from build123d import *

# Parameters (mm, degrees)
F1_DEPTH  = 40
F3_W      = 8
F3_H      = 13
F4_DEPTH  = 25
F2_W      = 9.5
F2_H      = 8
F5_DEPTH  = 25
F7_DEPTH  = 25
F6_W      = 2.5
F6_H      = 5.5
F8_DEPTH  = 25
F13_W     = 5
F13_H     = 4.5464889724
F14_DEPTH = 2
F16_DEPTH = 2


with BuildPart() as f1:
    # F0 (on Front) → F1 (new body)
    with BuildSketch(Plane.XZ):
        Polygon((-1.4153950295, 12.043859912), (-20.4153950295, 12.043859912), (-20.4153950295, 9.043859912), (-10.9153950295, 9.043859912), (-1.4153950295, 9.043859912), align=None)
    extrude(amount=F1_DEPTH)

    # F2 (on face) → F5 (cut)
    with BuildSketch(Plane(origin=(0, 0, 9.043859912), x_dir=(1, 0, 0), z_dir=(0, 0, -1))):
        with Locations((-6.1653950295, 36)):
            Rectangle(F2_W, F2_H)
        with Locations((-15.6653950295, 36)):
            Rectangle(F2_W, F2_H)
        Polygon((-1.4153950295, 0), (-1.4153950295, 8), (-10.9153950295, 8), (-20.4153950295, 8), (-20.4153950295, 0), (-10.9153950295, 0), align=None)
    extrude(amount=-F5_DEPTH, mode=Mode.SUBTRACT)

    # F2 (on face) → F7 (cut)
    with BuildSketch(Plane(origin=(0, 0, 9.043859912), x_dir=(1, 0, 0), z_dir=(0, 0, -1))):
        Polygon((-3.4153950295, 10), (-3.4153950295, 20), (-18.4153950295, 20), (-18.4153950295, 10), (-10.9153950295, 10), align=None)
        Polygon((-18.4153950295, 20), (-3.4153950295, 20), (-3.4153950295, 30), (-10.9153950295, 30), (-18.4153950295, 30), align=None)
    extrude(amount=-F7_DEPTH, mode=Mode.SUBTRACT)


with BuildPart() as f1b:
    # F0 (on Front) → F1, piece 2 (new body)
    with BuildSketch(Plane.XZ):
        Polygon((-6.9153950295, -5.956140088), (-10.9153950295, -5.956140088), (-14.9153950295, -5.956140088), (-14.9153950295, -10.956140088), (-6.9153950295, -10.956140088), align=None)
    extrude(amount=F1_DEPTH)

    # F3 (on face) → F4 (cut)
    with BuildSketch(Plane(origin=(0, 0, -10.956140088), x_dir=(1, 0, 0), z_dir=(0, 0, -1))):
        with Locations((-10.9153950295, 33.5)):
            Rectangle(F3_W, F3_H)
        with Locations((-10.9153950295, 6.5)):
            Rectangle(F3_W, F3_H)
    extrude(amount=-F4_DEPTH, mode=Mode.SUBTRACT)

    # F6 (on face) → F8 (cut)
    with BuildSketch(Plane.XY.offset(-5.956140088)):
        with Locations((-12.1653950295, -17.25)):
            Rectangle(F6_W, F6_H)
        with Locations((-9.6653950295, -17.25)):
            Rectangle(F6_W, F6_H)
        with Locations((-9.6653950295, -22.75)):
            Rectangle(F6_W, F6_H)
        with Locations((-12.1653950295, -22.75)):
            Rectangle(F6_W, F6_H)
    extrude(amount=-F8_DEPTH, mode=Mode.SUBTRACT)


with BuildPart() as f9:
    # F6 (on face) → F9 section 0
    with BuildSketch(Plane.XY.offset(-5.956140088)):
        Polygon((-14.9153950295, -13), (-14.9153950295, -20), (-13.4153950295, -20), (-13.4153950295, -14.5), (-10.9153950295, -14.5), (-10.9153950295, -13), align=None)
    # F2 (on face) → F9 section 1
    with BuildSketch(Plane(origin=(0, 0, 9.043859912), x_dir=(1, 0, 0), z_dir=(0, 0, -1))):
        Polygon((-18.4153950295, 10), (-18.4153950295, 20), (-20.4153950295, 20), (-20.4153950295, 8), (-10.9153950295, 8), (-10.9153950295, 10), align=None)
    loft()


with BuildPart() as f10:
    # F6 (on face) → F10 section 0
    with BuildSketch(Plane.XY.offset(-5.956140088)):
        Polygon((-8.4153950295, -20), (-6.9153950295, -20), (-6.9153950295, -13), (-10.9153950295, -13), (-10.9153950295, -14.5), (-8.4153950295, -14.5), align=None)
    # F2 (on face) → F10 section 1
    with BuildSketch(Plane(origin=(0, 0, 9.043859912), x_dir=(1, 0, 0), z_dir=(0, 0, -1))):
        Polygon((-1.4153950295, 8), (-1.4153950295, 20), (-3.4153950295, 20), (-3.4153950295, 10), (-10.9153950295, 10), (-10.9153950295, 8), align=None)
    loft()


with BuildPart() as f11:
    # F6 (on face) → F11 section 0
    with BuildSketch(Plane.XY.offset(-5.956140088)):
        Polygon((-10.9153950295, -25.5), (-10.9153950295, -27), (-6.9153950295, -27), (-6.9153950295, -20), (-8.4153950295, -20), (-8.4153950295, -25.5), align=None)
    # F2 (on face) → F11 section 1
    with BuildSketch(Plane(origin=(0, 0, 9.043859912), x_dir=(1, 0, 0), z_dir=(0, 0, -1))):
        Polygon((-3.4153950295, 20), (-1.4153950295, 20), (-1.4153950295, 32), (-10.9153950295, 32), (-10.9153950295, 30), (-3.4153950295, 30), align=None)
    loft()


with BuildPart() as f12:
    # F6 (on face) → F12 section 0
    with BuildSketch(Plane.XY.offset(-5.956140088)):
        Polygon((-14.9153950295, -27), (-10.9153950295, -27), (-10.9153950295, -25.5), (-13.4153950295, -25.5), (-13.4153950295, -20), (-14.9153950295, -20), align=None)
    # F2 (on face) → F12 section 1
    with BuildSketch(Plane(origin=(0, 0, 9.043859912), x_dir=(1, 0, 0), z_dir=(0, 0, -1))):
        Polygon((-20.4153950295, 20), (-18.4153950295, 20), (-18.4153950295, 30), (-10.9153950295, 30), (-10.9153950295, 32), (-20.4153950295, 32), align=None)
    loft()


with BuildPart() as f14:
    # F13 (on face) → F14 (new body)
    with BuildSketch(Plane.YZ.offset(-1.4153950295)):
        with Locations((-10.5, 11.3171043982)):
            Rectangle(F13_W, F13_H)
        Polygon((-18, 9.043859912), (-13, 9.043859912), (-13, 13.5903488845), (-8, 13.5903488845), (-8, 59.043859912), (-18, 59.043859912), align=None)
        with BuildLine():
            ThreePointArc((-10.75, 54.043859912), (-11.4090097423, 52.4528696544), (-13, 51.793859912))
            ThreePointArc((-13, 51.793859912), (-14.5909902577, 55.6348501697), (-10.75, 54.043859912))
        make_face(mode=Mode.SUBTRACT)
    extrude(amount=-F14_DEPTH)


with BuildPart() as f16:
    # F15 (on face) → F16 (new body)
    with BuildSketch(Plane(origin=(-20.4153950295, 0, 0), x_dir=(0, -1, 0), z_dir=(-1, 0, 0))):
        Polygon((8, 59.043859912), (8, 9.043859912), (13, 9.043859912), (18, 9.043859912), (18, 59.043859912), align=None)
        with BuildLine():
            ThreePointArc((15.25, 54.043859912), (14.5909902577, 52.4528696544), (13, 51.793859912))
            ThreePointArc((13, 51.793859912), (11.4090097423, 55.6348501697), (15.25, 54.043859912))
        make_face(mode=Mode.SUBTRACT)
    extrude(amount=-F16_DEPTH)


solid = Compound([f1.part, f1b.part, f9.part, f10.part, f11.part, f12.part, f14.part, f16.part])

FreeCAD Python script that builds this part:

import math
import FreeCAD as App
import Part
import Sketcher
from FreeCAD import Vector


def add_polygon(sketch, points):
    """Adds a closed chain of lines whose ends are joined by coincident constraints."""
    first, n = sketch.GeometryCount, len(points)
    for a, b in zip(points, points[1:] + points[:1]):
        sketch.addGeometry(Part.LineSegment(App.Vector(*a, 0), App.Vector(*b, 0)), False)
    for i in range(n):
        sketch.addConstraint(Sketcher.Constraint("Coincident", first + i, 2, first + (i + 1) % n, 1))

doc = App.newDocument("Part")
body = doc.addObject("PartDesign::Body", "Body")

sketch1 = body.newObject("Sketcher::SketchObject", "Sketch")
sketch1.AttachmentSupport = (doc.getObject("XZ_Plane"), [""])
sketch1.MapMode = "FlatFace"
add_polygon(sketch1, [(-1.4, 12), (-20.4, 12), (-20.4, 9), (-1.4, 9)])
sketch1.addConstraint([
    Sketcher.Constraint("Horizontal", 0),
    Sketcher.Constraint("Vertical", 1),
    Sketcher.Constraint("Horizontal", 2),
    Sketcher.Constraint("Vertical", 3),
    Sketcher.Constraint("DistanceX", 0, 2, 0, 1, 19.0),
    Sketcher.Constraint("DistanceY", 1, 2, 1, 1, 3.0),
    Sketcher.Constraint("DistanceY", -1, 1, 0, 2, 12.04386),
    Sketcher.Constraint("DistanceX", 0, 2, -1, 1, 20.415395),
])
pad1 = body.newObject("PartDesign::Pad", "Pad")
pad1.Profile = sketch1
pad1.Length = 40

sketch2 = body.newObject("Sketcher::SketchObject", "Sketch001")
sketch2.AttachmentSupport = (doc.getObject("XY_Plane"), [""])
sketch2.MapMode = "FlatFace"
sketch2.AttachmentOffset = App.Placement(Vector(0, 0, 9.04386), App.Rotation())
add_polygon(sketch2, [(-1, -32), (-1, -40), (-20, -40), (-20, -32)])
add_polygon(sketch2, [(-1, 0), (-1, -8), (-20, -8), (-20, 0)])
sketch2.addConstraint([
    Sketcher.Constraint("Vertical", 0),
    Sketcher.Constraint("Horizontal", 1),
    Sketcher.Constraint("Vertical", 2),
    Sketcher.Constraint("Horizontal", 3),
    Sketcher.Constraint("Vertical", 4),
    Sketcher.Constraint("Horizontal", 5),
    Sketcher.Constraint("Vertical", 6),
    Sketcher.Constraint("Horizontal", 7),
    Sketcher.Constraint("PointOnObject", 6, 2, -1),
    Sketcher.Constraint("Vertical", 3, 2, 4, 2),
    Sketcher.Constraint("Vertical", 2, 2, 5, 2),
    Sketcher.Constraint("Equal", 2, 4),
    Sketcher.Constraint("DistanceX", 1, 2, 1, 1, 19.0),
    Sketcher.Constraint("DistanceY", 0, 2, 0, 1, 8.0),
    Sketcher.Constraint("DistanceY", 0, 2, -1, 1, 40.0),
    Sketcher.Constraint("DistanceX", 0, 2, -1, 1, 1.415395),
])
pocket1 = body.newObject("PartDesign::Pocket", "Pocket")
pocket1.Profile = sketch2
pocket1.Length = 25
pocket1.Reversed = True

sketch3 = body.newObject("Sketcher::SketchObject", "Sketch002")
sketch3.AttachmentSupport = (doc.getObject("XY_Plane"), [""])
sketch3.MapMode = "FlatFace"
sketch3.AttachmentOffset = App.Placement(Vector(0, 0, 9.04386), App.Rotation())
add_polygon(sketch3, [(-3, -10), (-3, -30), (-18, -30), (-18, -10)])
sketch3.addConstraint([
    Sketcher.Constraint("Vertical", 0),
    Sketcher.Constraint("Horizontal", 1),
    Sketcher.Constraint("Vertical", 2),
    Sketcher.Constraint("Horizontal", 3),
    Sketcher.Constraint("DistanceX", 1, 2, 1, 1, 15.0),
    Sketcher.Constraint("DistanceY", 0, 2, 0, 1, 20.0),
    Sketcher.Constraint("DistanceY", 0, 2, -1, 1, 30.0),
    Sketcher.Constraint("DistanceX", 0, 2, -1, 1, 3.415395),
])
pocket2 = body.newObject("PartDesign::Pocket", "Pocket001")
pocket2.Profile = sketch3
pocket2.Length = 25
pocket2.Reversed = True
body2 = doc.addObject("PartDesign::Body", "Body001")

sketch4 = body2.newObject("Sketcher::SketchObject", "Sketch003")
sketch4.AttachmentSupport = (doc.getObject("XZ_Plane001"), [""])
sketch4.MapMode = "FlatFace"
add_polygon(sketch4, [(-7, -6), (-15, -6), (-15, -11), (-7, -11)])
sketch4.addConstraint([
    Sketcher.Constraint("Horizontal", 0),
    Sketcher.Constraint("Vertical", 1),
    Sketcher.Constraint("Horizontal", 2),
    Sketcher.Constraint("Vertical", 3),
    Sketcher.Constraint("DistanceX", 0, 2, 0, 1, 8.0),
    Sketcher.Constraint("DistanceY", 1, 2, 1, 1, 5.0),
    Sketcher.Constraint("DistanceY", 0, 2, -1, 1, 5.95614),
    Sketcher.Constraint("DistanceX", 0, 2, -1, 1, 14.915395),
])
pad2 = body2.newObject("PartDesign::Pad", "Pad001")
pad2.Profile = sketch4
pad2.Length = 40

sketch5 = body2.newObject("Sketcher::SketchObject", "Sketch004")
sketch5.AttachmentSupport = (doc.getObject("XY_Plane001"), [""])
sketch5.MapMode = "FlatFace"
sketch5.AttachmentOffset = App.Placement(Vector(0, 0, -10.95614), App.Rotation())
add_polygon(sketch5, [(-15, -40), (-15, -27), (-7, -27), (-7, -40)])
add_polygon(sketch5, [(-15, -13), (-15, 0), (-7, 0), (-7, -13)])
sketch5.addConstraint([
    Sketcher.Constraint("Vertical", 0),
    Sketcher.Constraint("Horizontal", 1),
    Sketcher.Constraint("Vertical", 2),
    Sketcher.Constraint("Horizontal", 3),
    Sketcher.Constraint("Vertical", 4),
    Sketcher.Constraint("Horizontal", 5),
    Sketcher.Constraint("Vertical", 6),
    Sketcher.Constraint("Horizontal", 7),
    Sketcher.Constraint("PointOnObject", 4, 2, -1),
    Sketcher.Constraint("Vertical", 3, 2, 4, 2),
    Sketcher.Constraint("Vertical", 2, 2, 5, 2),
    Sketcher.Constraint("Equal", 2, 4),
    Sketcher.Constraint("DistanceX", 1, 1, 1, 2, 8.0),
    Sketcher.Constraint("DistanceY", 0, 1, 0, 2, 13.0),
    Sketcher.Constraint("DistanceY", 0, 2, -1, 1, 27.0),
    Sketcher.Constraint("DistanceX", 0, 2, -1, 1, 14.915395),
])
pocket3 = body2.newObject("PartDesign::Pocket", "Pocket002")
pocket3.Profile = sketch5
pocket3.Length = 25
pocket3.Reversed = True

sketch6 = body2.newObject("Sketcher::SketchObject", "Sketch005")
sketch6.AttachmentSupport = (doc.getObject("XY_Plane001"), [""])
sketch6.MapMode = "FlatFace"
sketch6.AttachmentOffset = App.Placement(Vector(0, 0, -5.95614), App.Rotation())
add_polygon(sketch6, [(-13, -14), (-13, -26), (-8, -26), (-8, -14)])
sketch6.addConstraint([
    Sketcher.Constraint("Vertical", 0),
    Sketcher.Constraint("Horizontal", 1),
    Sketcher.Constraint("Vertical", 2),
    Sketcher.Constraint("Horizontal", 3),
    Sketcher.Constraint("DistanceX", 1, 1, 1, 2, 5.0),
    Sketcher.Constraint("DistanceY", 0, 2, 0, 1, 11.0),
    Sketcher.Constraint("DistanceY", 0, 2, -1, 1, 25.5),
    Sketcher.Constraint("DistanceX", 0, 2, -1, 1, 13.415395),
])
pocket4 = body2.newObject("PartDesign::Pocket", "Pocket003")
pocket4.Profile = sketch6
pocket4.Length = 25
body3 = doc.addObject("PartDesign::Body", "Body002")

sketch7 = body3.newObject("Sketcher::SketchObject", "Sketch006")
sketch7.AttachmentSupport = (doc.getObject("XY_Plane002"), [""])
sketch7.MapMode = "FlatFace"
sketch7.AttachmentOffset = App.Placement(Vector(0, 0, -5.95614), App.Rotation())
add_polygon(sketch7, [(-14.9, -13), (-14.9, -20), (-13.4, -20), (-13.4, -14.5), (-10.9, -14.5), (-10.9, -13)])
sketch7.addConstraint([
    Sketcher.Constraint("Vertical", 0),
    Sketcher.Constraint("Horizontal", 1),
    Sketcher.Constraint("Vertical", 2),
    Sketcher.Constraint("Horizontal", 3),
    Sketcher.Constraint("Vertical", 4),
    Sketcher.Constraint("Horizontal", 5),
    Sketcher.Constraint("Equal", 1, 4),
    Sketcher.Constraint("DistanceX", 5, 2, 5, 1, 4.0),
    Sketcher.Constraint("DistanceY", 0, 2, 0, 1, 7.0),
    Sketcher.Constraint("DistanceX", 1, 1, 1, 2, 1.5),
    Sketcher.Constraint("DistanceY", 0, 2, -1, 1, 20.0),
    Sketcher.Constraint("DistanceX", 0, 2, -1, 1, 14.915395),
])

sketch8 = body3.newObject("Sketcher::SketchObject", "Sketch007")
sketch8.AttachmentSupport = (doc.getObject("XY_Plane002"), [""])
sketch8.MapMode = "FlatFace"
sketch8.AttachmentOffset = App.Placement(Vector(0, 0, 9.04386), App.Rotation())
add_polygon(sketch8, [(-18.4, -10), (-18.4, -20), (-20.4, -20), (-20.4, -8), (-10.9, -8), (-10.9, -10)])
sketch8.addConstraint([
    Sketcher.Constraint("Vertical", 0),
    Sketcher.Constraint("Horizontal", 1),
    Sketcher.Constraint("Vertical", 2),
    Sketcher.Constraint("Horizontal", 3),
    Sketcher.Constraint("Vertical", 4),
    Sketcher.Constraint("Horizontal", 5),
    Sketcher.Constraint("Equal", 1, 4),
    Sketcher.Constraint("DistanceX", 1, 2, 1, 1, 2.0),
    Sketcher.Constraint("DistanceY", 0, 2, 0, 1, 10.0),
    Sketcher.Constraint("DistanceX", 3, 1, 3, 2, 9.5),
    Sketcher.Constraint("DistanceY", 0, 2, -1, 1, 20.0),
    Sketcher.Constraint("DistanceX", 0, 2, -1, 1, 18.415395),
])

additiveloft = body3.newObject("PartDesign::AdditiveLoft", "AdditiveLoft")
additiveloft.Profile = sketch7
additiveloft.Sections = [sketch8]
body4 = doc.addObject("PartDesign::Body", "Body003")

sketch9 = body4.newObject("Sketcher::SketchObject", "Sketch008")
sketch9.AttachmentSupport = (doc.getObject("XY_Plane003"), [""])
sketch9.MapMode = "FlatFace"
sketch9.AttachmentOffset = App.Placement(Vector(0, 0, -5.95614), App.Rotation())
add_polygon(sketch9, [(-8.4, -20), (-6.9, -20), (-6.9, -13), (-10.9, -13), (-10.9, -14.5), (-8.4, -14.5)])
sketch9.addConstraint([
    Sketcher.Constraint("Horizontal", 0),
    Sketcher.Constraint("Vertical", 1),
    Sketcher.Constraint("Horizontal", 2),
    Sketcher.Constraint("Vertical", 3),
    Sketcher.Constraint("Horizontal", 4),
    Sketcher.Constraint("Vertical", 5),
    Sketcher.Constraint("Equal", 0, 3),
    Sketcher.Constraint("DistanceX", 2, 2, 2, 1, 4.0),
    Sketcher.Constraint("DistanceY", 1, 1, 1, 2, 7.0),
    Sketcher.Constraint("DistanceX", 0, 1, 0, 2, 1.5),
    Sketcher.Constraint("DistanceY", 0, 2, -1, 1, 20.0),
    Sketcher.Constraint("DistanceX", 0, 2, -1, 1, 6.915395),
])

sketch10 = body4.newObject("Sketcher::SketchObject", "Sketch009")
sketch10.AttachmentSupport = (doc.getObject("XY_Plane003"), [""])
sketch10.MapMode = "FlatFace"
sketch10.AttachmentOffset = App.Placement(Vector(0, 0, 9.04386), App.Rotation())
add_polygon(sketch10, [(-1.4, -8), (-1.4, -20), (-3.4, -20), (-3.4, -10), (-10.9, -10), (-10.9, -8)])
sketch10.addConstraint([
    Sketcher.Constraint("Vertical", 0),
    Sketcher.Constraint("Horizontal", 1),
    Sketcher.Constraint("Vertical", 2),
    Sketcher.Constraint("Horizontal", 3),
    Sketcher.Constraint("Vertical", 4),
    Sketcher.Constraint("Horizontal", 5),
    Sketcher.Constraint("Equal", 1, 4),
    Sketcher.Constraint("DistanceX", 1, 2, 1, 1, 2.0),
    Sketcher.Constraint("DistanceY", 0, 2, 0, 1, 12.0),
    Sketcher.Constraint("DistanceX", 3, 2, 3, 1, 7.5),
    Sketcher.Constraint("DistanceY", 0, 2, -1, 1, 20.0),
    Sketcher.Constraint("DistanceX", 0, 2, -1, 1, 1.415395),
])

additiveloft2 = body4.newObject("PartDesign::AdditiveLoft", "AdditiveLoft001")
additiveloft2.Profile = sketch9
additiveloft2.Sections = [sketch10]
body5 = doc.addObject("PartDesign::Body", "Body004")

sketch11 = body5.newObject("Sketcher::SketchObject", "Sketch010")
sketch11.AttachmentSupport = (doc.getObject("XY_Plane004"), [""])
sketch11.MapMode = "FlatFace"
sketch11.AttachmentOffset = App.Placement(Vector(0, 0, -5.95614), App.Rotation())
add_polygon(sketch11, [(-10.9, -25.5), (-10.9, -27), (-6.9, -27), (-6.9, -20), (-8.4, -20), (-8.4, -25.5)])
sketch11.addConstraint([
    Sketcher.Constraint("Vertical", 0),
    Sketcher.Constraint("Horizontal", 1),
    Sketcher.Constraint("Vertical", 2),
    Sketcher.Constraint("Horizontal", 3),
    Sketcher.Constraint("Vertical", 4),
    Sketcher.Constraint("Horizontal", 5),
    Sketcher.Constraint("Equal", 3, 0),
    Sketcher.Constraint("DistanceX", 1, 1, 1, 2, 4.0),
    Sketcher.Constraint("DistanceY", 2, 1, 2, 2, 7.0),
    Sketcher.Constraint("DistanceX", 3, 2, 3, 1, 1.5),
    Sketcher.Constraint("DistanceY", 0, 2, -1, 1, 27.0),
    Sketcher.Constraint("DistanceX", 0, 2, -1, 1, 10.915395),
])

sketch12 = body5.newObject("Sketcher::SketchObject", "Sketch011")
sketch12.AttachmentSupport = (doc.getObject("XY_Plane004"), [""])
sketch12.MapMode = "FlatFace"
sketch12.AttachmentOffset = App.Placement(Vector(0, 0, 9.04386), App.Rotation())
add_polygon(sketch12, [(-3.4, -20), (-1.4, -20), (-1.4, -32), (-10.9, -32), (-10.9, -30), (-3.4, -30)])
sketch12.addConstraint([
    Sketcher.Constraint("Horizontal", 0),
    Sketcher.Constraint("Vertical", 1),
    Sketcher.Constraint("Horizontal", 2),
    Sketcher.Constraint("Vertical", 3),
    Sketcher.Constraint("Horizontal", 4),
    Sketcher.Constraint("Vertical", 5),
    Sketcher.Constraint("Equal", 0, 3),
    Sketcher.Constraint("DistanceX", 0, 1, 0, 2, 2.0),
    Sketcher.Constraint("DistanceY", 1, 2, 1, 1, 12.0),
    Sketcher.Constraint("DistanceX", 2, 2, 2, 1, 9.5),
    Sketcher.Constraint("DistanceY", 0, 2, -1, 1, 20.0),
    Sketcher.Constraint("DistanceX", 0, 2, -1, 1, 1.415395),
])

additiveloft3 = body5.newObject("PartDesign::AdditiveLoft", "AdditiveLoft002")
additiveloft3.Profile = sketch11
additiveloft3.Sections = [sketch12]
body6 = doc.addObject("PartDesign::Body", "Body005")

sketch13 = body6.newObject("Sketcher::SketchObject", "Sketch012")
sketch13.AttachmentSupport = (doc.getObject("XY_Plane005"), [""])
sketch13.MapMode = "FlatFace"
sketch13.AttachmentOffset = App.Placement(Vector(0, 0, -5.95614), App.Rotation())
add_polygon(sketch13, [(-14.9, -27), (-10.9, -27), (-10.9, -25.5), (-13.4, -25.5), (-13.4, -20), (-14.9, -20)])
sketch13.addConstraint([
    Sketcher.Constraint("Horizontal", 0),
    Sketcher.Constraint("Vertical", 1),
    Sketcher.Constraint("Horizontal", 2),
    Sketcher.Constraint("Vertical", 3),
    Sketcher.Constraint("Horizontal", 4),
    Sketcher.Constraint("Vertical", 5),
    Sketcher.Constraint("Equal", 4, 1),
    Sketcher.Constraint("DistanceX", 0, 1, 0, 2, 4.0),
    Sketcher.Constraint("DistanceY", 5, 2, 5, 1, 7.0),
    Sketcher.Constraint("DistanceX", 2, 2, 2, 1, 2.5),
    Sketcher.Constraint("DistanceY", 0, 2, -1, 1, 27.0),
    Sketcher.Constraint("DistanceX", 0, 2, -1, 1, 10.915395),
])

sketch14 = body6.newObject("Sketcher::SketchObject", "Sketch013")
sketch14.AttachmentSupport = (doc.getObject("XY_Plane005"), [""])
sketch14.MapMode = "FlatFace"
sketch14.AttachmentOffset = App.Placement(Vector(0, 0, 9.04386), App.Rotation())
add_polygon(sketch14, [(-20.4, -20), (-18.4, -20), (-18.4, -30), (-10.9, -30), (-10.9, -32), (-20.4, -32)])
sketch14.addConstraint([
    Sketcher.Constraint("Horizontal", 0),
    Sketcher.Constraint("Vertical", 1),
    Sketcher.Constraint("Horizontal", 2),
    Sketcher.Constraint("Vertical", 3),
    Sketcher.Constraint("Horizontal", 4),
    Sketcher.Constraint("Vertical", 5),
    Sketcher.Constraint("Equal", 0, 3),
    Sketcher.Constraint("DistanceX", 0, 1, 0, 2, 2.0),
    Sketcher.Constraint("DistanceY", 1, 2, 1, 1, 10.0),
    Sketcher.Constraint("DistanceX", 2, 1, 2, 2, 7.5),
    Sketcher.Constraint("DistanceY", 0, 2, -1, 1, 20.0),
    Sketcher.Constraint("DistanceX", 0, 2, -1, 1, 18.415395),
])

additiveloft4 = body6.newObject("PartDesign::AdditiveLoft", "AdditiveLoft003")
additiveloft4.Profile = sketch13
additiveloft4.Sections = [sketch14]
body7 = doc.addObject("PartDesign::Body", "Body006")

sketch15 = body7.newObject("Sketcher::SketchObject", "Sketch014")
sketch15.AttachmentSupport = (doc.getObject("YZ_Plane006"), [""])
sketch15.MapMode = "FlatFace"
sketch15.AttachmentOffset = App.Placement(Vector(0, 0, -1.415395), App.Rotation())
add_polygon(sketch15, [(-8, 9), (-8, 59), (-18, 59), (-18, 9)])
sketch15.addGeometry(Part.ArcOfCircle(Part.Circle(Vector(-13, 54, 0), Vector(0, 0, 1), 2.2), math.radians(0), math.radians(270)), False)
sketch15.addGeometry(Part.ArcOfCircle(Part.Circle(Vector(-13, 54, 0), Vector(0, 0, 1), 2.2), math.radians(-90), math.radians(0)), False)
sketch15.addConstraint([
    Sketcher.Constraint("Tangent", 4, 1, 5, 2),
    Sketcher.Constraint("Coincident", 5, 1, 4, 2),
    Sketcher.Constraint("Vertical", 0),
    Sketcher.Constraint("Horizontal", 1),
    Sketcher.Constraint("Vertical", 2),
    Sketcher.Constraint("Horizontal", 3),
    Sketcher.Constraint("Horizontal", 5, 3, 4, 1),
    Sketcher.Constraint("Vertical", 4, 3, 5, 1),
    Sketcher.Constraint("DistanceX", 1, 2, 1, 1, 10.0),
    Sketcher.Constraint("DistanceY", 0, 1, 0, 2, 50.0),
    Sketcher.Constraint("Radius", 4, 2.25),
    Sketcher.Constraint("DistanceX", 4, 3, -1, 1, 13.0),
    Sketcher.Constraint("DistanceX", 0, 2, -1, 1, 8.0),
    Sketcher.Constraint("DistanceY", 4, 3, 0, 2, 5.0),
    Sketcher.Constraint("DistanceY", -1, 1, 4, 3, 54.04386),
])
pad3 = body7.newObject("PartDesign::Pad", "Pad002")
pad3.Profile = sketch15
pad3.Length = 2
pad3.Reversed = True
body8 = doc.addObject("PartDesign::Body", "Body007")

sketch16 = body8.newObject("Sketcher::SketchObject", "Sketch015")
sketch16.AttachmentSupport = (doc.getObject("YZ_Plane007"), [""])
sketch16.MapMode = "FlatFace"
sketch16.AttachmentOffset = App.Placement(Vector(0, 0, -20.415395), App.Rotation())
add_polygon(sketch16, [(-8, 59), (-8, 9), (-18, 9), (-18, 59)])
sketch16.addGeometry(Part.ArcOfCircle(Part.Circle(Vector(-13, 54, 0), Vector(0, 0, 1), 2.2), math.radians(-90), math.radians(180)), False)
sketch16.addGeometry(Part.ArcOfCircle(Part.Circle(Vector(-13, 54, 0), Vector(0, 0, 1), 2.2), math.radians(180), math.radians(270)), False)
sketch16.addConstraint([
    Sketcher.Constraint("Tangent", 4, 1, 5, 2),
    Sketcher.Constraint("Coincident", 5, 1, 4, 2),
    Sketcher.Constraint("Vertical", 0),
    Sketcher.Constraint("Horizontal", 1),
    Sketcher.Constraint("Vertical", 2),
    Sketcher.Constraint("Horizontal", 3),
    Sketcher.Constraint("Horizontal", 4, 3, 5, 1),
    Sketcher.Constraint("Vertical", 5, 3, 4, 1),
    Sketcher.Constraint("DistanceX", 1, 2, 1, 1, 10.0),
    Sketcher.Constraint("DistanceY", 0, 2, 0, 1, 50.0),
    Sketcher.Constraint("Radius", 4, 2.25),
    Sketcher.Constraint("DistanceX", 4, 3, -1, 1, 13.0),
    Sketcher.Constraint("DistanceX", 0, 2, -1, 1, 8.0),
    Sketcher.Constraint("DistanceY", 0, 2, 4, 3, 45.0),
    Sketcher.Constraint("DistanceY", -1, 1, 4, 3, 54.04386),
])
pad4 = body8.newObject("PartDesign::Pad", "Pad003")
pad4.Profile = sketch16
pad4.Length = 2

doc.recompute()
